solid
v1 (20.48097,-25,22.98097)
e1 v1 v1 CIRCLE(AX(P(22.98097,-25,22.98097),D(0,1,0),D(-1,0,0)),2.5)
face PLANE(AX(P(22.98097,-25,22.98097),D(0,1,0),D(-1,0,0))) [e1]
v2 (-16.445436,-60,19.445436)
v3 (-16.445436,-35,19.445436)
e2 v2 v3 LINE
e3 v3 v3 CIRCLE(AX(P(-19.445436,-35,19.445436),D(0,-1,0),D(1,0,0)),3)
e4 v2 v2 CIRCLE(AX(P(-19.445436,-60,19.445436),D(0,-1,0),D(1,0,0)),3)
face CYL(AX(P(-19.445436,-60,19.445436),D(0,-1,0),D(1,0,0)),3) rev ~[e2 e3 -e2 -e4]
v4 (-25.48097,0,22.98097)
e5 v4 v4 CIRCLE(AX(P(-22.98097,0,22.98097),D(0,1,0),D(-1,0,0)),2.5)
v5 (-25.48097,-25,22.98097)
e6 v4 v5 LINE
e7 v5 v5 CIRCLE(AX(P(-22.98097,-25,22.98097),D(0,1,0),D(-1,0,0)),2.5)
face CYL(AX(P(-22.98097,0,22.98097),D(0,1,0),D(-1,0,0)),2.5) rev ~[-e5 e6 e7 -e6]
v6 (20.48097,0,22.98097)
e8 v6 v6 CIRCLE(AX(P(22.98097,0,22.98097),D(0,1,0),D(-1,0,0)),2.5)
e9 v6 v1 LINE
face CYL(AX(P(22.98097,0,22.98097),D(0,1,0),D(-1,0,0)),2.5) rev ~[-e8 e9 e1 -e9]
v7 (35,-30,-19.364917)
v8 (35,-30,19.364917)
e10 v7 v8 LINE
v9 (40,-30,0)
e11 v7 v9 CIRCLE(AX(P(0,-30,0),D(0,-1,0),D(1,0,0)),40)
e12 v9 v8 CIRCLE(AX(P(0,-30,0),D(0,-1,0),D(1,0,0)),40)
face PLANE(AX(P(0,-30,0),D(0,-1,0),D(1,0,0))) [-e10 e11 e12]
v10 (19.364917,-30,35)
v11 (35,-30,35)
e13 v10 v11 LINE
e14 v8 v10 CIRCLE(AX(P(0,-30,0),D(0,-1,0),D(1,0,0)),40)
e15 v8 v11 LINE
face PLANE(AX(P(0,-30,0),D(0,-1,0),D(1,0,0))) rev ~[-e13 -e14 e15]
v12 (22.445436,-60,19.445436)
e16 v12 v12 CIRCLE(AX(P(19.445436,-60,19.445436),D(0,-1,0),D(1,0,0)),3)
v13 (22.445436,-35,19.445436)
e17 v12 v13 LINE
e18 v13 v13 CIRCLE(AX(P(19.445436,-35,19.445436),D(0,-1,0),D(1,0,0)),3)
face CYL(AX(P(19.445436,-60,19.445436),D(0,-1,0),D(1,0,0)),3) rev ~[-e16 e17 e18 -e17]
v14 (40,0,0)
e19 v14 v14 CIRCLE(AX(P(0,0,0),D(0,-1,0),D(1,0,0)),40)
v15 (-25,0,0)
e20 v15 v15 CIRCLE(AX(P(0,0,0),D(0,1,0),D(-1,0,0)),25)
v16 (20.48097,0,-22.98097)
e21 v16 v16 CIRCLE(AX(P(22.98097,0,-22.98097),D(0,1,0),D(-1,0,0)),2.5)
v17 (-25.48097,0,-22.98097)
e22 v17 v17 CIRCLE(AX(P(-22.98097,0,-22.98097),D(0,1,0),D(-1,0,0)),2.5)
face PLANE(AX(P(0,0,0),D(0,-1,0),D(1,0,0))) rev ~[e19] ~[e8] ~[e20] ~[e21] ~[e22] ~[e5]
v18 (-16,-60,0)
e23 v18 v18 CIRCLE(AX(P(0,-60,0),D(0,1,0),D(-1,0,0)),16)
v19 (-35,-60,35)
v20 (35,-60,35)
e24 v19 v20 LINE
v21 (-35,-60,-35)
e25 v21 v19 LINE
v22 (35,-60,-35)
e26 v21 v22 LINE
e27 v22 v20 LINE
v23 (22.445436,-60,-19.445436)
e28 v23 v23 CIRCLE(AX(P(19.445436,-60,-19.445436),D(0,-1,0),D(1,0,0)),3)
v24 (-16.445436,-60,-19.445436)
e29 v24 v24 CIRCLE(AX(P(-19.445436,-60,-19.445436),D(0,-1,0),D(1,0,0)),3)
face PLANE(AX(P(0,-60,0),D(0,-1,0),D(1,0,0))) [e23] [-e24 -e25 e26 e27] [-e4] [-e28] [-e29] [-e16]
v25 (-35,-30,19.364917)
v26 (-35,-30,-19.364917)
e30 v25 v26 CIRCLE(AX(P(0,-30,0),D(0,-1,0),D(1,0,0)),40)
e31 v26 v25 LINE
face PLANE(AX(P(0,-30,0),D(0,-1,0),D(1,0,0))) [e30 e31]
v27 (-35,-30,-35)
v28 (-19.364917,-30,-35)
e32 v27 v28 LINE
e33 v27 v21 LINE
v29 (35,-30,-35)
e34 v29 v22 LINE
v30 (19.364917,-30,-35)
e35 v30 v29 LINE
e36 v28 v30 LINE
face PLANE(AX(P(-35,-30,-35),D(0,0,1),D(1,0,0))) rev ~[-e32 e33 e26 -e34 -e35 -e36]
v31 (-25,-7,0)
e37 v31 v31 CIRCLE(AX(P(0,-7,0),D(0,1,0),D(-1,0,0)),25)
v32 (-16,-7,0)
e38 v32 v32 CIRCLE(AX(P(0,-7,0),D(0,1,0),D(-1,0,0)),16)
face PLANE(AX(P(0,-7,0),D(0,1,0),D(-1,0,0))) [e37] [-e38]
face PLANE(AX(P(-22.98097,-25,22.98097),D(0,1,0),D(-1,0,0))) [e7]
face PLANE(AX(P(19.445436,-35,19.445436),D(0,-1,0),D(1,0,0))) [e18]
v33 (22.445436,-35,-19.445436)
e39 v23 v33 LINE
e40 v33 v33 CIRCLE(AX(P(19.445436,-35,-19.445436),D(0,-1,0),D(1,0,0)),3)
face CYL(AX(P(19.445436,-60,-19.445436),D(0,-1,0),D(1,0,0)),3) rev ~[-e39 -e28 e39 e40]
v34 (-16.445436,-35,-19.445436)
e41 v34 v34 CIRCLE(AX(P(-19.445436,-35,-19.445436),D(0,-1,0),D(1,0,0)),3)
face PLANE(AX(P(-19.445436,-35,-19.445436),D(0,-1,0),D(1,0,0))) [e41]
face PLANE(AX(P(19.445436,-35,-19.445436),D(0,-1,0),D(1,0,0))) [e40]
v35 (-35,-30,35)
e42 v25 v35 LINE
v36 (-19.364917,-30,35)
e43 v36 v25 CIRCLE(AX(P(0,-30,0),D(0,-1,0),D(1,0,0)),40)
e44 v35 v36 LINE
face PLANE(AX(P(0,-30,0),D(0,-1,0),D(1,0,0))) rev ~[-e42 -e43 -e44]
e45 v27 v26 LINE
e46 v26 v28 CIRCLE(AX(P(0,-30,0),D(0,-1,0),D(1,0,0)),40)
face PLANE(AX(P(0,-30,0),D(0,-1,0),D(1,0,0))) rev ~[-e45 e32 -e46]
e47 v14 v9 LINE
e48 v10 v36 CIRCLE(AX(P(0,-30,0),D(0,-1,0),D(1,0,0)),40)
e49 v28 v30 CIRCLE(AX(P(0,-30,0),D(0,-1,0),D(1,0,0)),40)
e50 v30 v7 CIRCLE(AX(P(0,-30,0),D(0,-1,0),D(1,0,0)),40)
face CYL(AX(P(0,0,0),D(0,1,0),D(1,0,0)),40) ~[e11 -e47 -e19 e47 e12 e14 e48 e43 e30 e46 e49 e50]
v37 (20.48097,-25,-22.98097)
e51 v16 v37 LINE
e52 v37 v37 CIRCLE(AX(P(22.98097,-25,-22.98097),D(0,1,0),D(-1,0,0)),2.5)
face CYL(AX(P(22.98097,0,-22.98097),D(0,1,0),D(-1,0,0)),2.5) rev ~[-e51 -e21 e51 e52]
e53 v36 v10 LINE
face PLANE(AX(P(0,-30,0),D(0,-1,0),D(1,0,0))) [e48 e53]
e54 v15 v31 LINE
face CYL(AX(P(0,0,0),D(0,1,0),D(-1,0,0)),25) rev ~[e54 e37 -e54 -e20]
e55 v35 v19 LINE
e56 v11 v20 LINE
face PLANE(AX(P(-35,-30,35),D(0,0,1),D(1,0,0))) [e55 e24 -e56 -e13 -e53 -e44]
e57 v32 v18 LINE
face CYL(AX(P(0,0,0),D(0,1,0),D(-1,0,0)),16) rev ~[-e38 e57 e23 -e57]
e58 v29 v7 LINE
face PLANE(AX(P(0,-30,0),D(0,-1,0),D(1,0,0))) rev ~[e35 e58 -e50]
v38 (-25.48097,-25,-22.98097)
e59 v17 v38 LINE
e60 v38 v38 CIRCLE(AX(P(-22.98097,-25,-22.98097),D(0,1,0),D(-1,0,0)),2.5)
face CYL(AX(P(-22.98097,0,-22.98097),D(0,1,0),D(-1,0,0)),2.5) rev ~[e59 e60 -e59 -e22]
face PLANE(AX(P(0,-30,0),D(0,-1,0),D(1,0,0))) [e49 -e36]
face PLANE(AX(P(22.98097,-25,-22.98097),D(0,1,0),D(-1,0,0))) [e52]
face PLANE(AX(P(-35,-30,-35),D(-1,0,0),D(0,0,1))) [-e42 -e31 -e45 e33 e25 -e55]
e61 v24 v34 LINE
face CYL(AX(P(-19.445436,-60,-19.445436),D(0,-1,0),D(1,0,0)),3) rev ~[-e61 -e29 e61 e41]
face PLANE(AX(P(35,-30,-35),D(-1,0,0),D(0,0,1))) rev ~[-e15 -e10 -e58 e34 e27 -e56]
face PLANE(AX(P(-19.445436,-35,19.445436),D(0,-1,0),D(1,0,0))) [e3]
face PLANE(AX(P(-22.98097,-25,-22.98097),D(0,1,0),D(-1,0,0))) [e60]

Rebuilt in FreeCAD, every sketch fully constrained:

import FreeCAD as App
import Part
import Sketcher
from FreeCAD import Vector
Q = App.Units.Quantity

doc = App.newDocument("Part")
body = doc.addObject("PartDesign::Body", "Body")

# Sketch on XZ plane
sketch1 = body.newObject("Sketcher::SketchObject", "Sketch")
sketch1.AttachmentSupport = (doc.getObject("XZ_Plane"), [""])
sketch1.MapMode = "FlatFace"
sketch1.addGeometry(Part.Circle(Vector(0, 0, 0), Vector(0, 0, 1), 40), False)
sketch1.addConstraint(Sketcher.Constraint("Coincident", 0, 3, -1, 1))
sketch1.addConstraint(Sketcher.Constraint("Diameter", 0, Q("80 mm")))
pad1 = body.newObject("PartDesign::Pad", "Pad")
pad1.Profile = sketch1
pad1.Length = 30

# Sketch on XZ plane
sketch2 = body.newObject("Sketcher::SketchObject", "Sketch001")
sketch2.AttachmentSupport = (doc.getObject("XZ_Plane"), [""])
sketch2.MapMode = "FlatFace"
sketch2.AttachmentOffset = App.Placement(Vector(0, 0, 30), App.Rotation())
sketch2.addGeometry(Part.LineSegment(Vector(-35, 35, 0), Vector(-35, -35, 0)), False)
sketch2.addGeometry(Part.LineSegment(Vector(-35, -35, 0), Vector(35, -35, 0)), False)
sketch2.addGeometry(Part.LineSegment(Vector(35, -35, 0), Vector(35, 35, 0)), False)
sketch2.addGeometry(Part.LineSegment(Vector(35, 35, 0), Vector(-35, 35, 0)), False)
sketch2.addConstraint(Sketcher.Constraint("Coincident", 0, 2, 1, 1))
sketch2.addConstraint(Sketcher.Constraint("Coincident", 1, 2, 2, 1))
sketch2.addConstraint(Sketcher.Constraint("Coincident", 2, 2, 3, 1))
sketch2.addConstraint(Sketcher.Constraint("Coincident", 3, 2, 0, 1))
sketch2.addConstraint(Sketcher.Constraint("Vertical", 0))
sketch2.addConstraint(Sketcher.Constraint("Horizontal", 1))
sketch2.addConstraint(Sketcher.Constraint("Vertical", 2))
sketch2.addConstraint(Sketcher.Constraint("Horizontal", 3))
sketch2.addConstraint(Sketcher.Constraint("Symmetric", 0, 2, 2, 2, -1, 1))
sketch2.addConstraint(Sketcher.Constraint("Equal", 3, 0))
sketch2.addConstraint(Sketcher.Constraint("DistanceX", 1, 1, 1, 2, Q("70 mm")))
pad2 = body.newObject("PartDesign::Pad", "Pad001")
pad2.Profile = sketch2
pad2.Length = 30

# Sketch on XZ plane
sketch3 = body.newObject("Sketcher::SketchObject", "Sketch002")
sketch3.AttachmentSupport = (doc.getObject("XZ_Plane"), [""])
sketch3.MapMode = "FlatFace"
sketch3.addGeometry(Part.Circle(Vector(0, 0, 0), Vector(0, 0, 1), 16), False)
sketch3.addConstraint(Sketcher.Constraint("Coincident", 0, 3, -1, 1))
sketch3.addConstraint(Sketcher.Constraint("Diameter", 0, Q("32 mm")))
pocket1 = body.newObject("PartDesign::Pocket", "Pocket")
pocket1.Profile = sketch3
pocket1.Type = "ThroughAll"
pocket1.Reversed = True

# Sketch on XZ plane
sketch4 = body.newObject("Sketcher::SketchObject", "Sketch003")
sketch4.AttachmentSupport = (doc.getObject("XZ_Plane"), [""])
sketch4.MapMode = "FlatFace"
sketch4.addGeometry(Part.Circle(Vector(0, 0, 0), Vector(0, 0, 1), 25), False)
sketch4.addConstraint(Sketcher.Constraint("Coincident", 0, 3, -1, 1))
sketch4.addConstraint(Sketcher.Constraint("Diameter", 0, Q("50 mm")))
pocket2 = body.newObject("PartDesign::Pocket", "Pocket001")
pocket2.Profile = sketch4
pocket2.Length = 7
pocket2.Reversed = True

# Sketch on XZ plane
sketch5 = body.newObject("Sketcher::SketchObject", "Sketch004")
sketch5.AttachmentSupport = (doc.getObject("XZ_Plane"), [""])
sketch5.MapMode = "FlatFace"
sketch5.addGeometry(Part.Circle(Vector(22.98097, 22.98097, 0), Vector(0, 0, 1), 2.5), False)
sketch5.addGeometry(Part.Circle(Vector(-22.98097, 22.98097, 0), Vector(0, 0, 1), 2.5), False)
sketch5.addGeometry(Part.Circle(Vector(-22.98097, -22.98097, 0), Vector(0, 0, 1), 2.5), False)
sketch5.addGeometry(Part.Circle(Vector(22.98097, -22.98097, 0), Vector(0, 0, 1), 2.5), False)
sketch5.addConstraint(Sketcher.Constraint("Equal", 0, 1))
sketch5.addConstraint(Sketcher.Constraint("Equal", 1, 2))
sketch5.addConstraint(Sketcher.Constraint("Equal", 2, 3))
sketch5.addConstraint(Sketcher.Constraint("Symmetric", 0, 3, 2, 3, -1, 1))
sketch5.addConstraint(Sketcher.Constraint("Symmetric", 1, 3, 3, 3, -1, 1))
sketch5.addConstraint(Sketcher.Constraint("Symmetric", 0, 3, 1, 3, -2))
sketch5.addConstraint(Sketcher.Constraint("Diameter", 0, Q("5 mm")))
sketch5.addConstraint(Sketcher.Constraint("DistanceX", -1, 1, 0, 3, Q("22.98097 mm")))
sketch5.addConstraint(Sketcher.Constraint("DistanceY", -1, 1, 0, 3, Q("22.98097 mm")))
pocket3 = body.newObject("PartDesign::Pocket", "Pocket002")
pocket3.Profile = sketch5
pocket3.Length = 25
pocket3.Reversed = True

# Sketch on XZ plane
sketch6 = body.newObject("Sketcher::SketchObject", "Sketch005")
sketch6.AttachmentSupport = (doc.getObject("XZ_Plane"), [""])
sketch6.MapMode = "FlatFace"
sketch6.AttachmentOffset = App.Placement(Vector(0, 0, 60), App.Rotation())
sketch6.addGeometry(Part.Circle(Vector(-19.445436, 19.445436, 0), Vector(0, 0, 1), 3), False)
sketch6.addGeometry(Part.Circle(Vector(19.445436, 19.445436, 0), Vector(0, 0, 1), 3), False)
sketch6.addGeometry(Part.Circle(Vector(19.445436, -19.445436, 0), Vector(0, 0, 1), 3), False)
sketch6.addGeometry(Part.Circle(Vector(-19.445436, -19.445436, 0), Vector(0, 0, 1), 3), False)
sketch6.addConstraint(Sketcher.Constraint("Equal", 0, 1))
sketch6.addConstraint(Sketcher.Constraint("Equal", 1, 2))
sketch6.addConstraint(Sketcher.Constraint("Equal", 2, 3))
sketch6.addConstraint(Sketcher.Constraint("Symmetric", 0, 3, 2, 3, -1, 1))
sketch6.addConstraint(Sketcher.Constraint("Symmetric", 1, 3, 3, 3, -1, 1))
sketch6.addConstraint(Sketcher.Constraint("Symmetric", 0, 3, 1, 3, -2))
sketch6.addConstraint(Sketcher.Constraint("Diameter", 0, Q("6 mm")))
sketch6.addConstraint(Sketcher.Constraint("DistanceX", 0, 3, -1, 1, Q("19.445436 mm")))
sketch6.addConstraint(Sketcher.Constraint("DistanceY", -1, 1, 0, 3, Q("19.445436 mm")))
pocket4 = body.newObject("PartDesign::Pocket", "Pocket003")
pocket4.Profile = sketch6
pocket4.Length = 25

doc.recompute()
